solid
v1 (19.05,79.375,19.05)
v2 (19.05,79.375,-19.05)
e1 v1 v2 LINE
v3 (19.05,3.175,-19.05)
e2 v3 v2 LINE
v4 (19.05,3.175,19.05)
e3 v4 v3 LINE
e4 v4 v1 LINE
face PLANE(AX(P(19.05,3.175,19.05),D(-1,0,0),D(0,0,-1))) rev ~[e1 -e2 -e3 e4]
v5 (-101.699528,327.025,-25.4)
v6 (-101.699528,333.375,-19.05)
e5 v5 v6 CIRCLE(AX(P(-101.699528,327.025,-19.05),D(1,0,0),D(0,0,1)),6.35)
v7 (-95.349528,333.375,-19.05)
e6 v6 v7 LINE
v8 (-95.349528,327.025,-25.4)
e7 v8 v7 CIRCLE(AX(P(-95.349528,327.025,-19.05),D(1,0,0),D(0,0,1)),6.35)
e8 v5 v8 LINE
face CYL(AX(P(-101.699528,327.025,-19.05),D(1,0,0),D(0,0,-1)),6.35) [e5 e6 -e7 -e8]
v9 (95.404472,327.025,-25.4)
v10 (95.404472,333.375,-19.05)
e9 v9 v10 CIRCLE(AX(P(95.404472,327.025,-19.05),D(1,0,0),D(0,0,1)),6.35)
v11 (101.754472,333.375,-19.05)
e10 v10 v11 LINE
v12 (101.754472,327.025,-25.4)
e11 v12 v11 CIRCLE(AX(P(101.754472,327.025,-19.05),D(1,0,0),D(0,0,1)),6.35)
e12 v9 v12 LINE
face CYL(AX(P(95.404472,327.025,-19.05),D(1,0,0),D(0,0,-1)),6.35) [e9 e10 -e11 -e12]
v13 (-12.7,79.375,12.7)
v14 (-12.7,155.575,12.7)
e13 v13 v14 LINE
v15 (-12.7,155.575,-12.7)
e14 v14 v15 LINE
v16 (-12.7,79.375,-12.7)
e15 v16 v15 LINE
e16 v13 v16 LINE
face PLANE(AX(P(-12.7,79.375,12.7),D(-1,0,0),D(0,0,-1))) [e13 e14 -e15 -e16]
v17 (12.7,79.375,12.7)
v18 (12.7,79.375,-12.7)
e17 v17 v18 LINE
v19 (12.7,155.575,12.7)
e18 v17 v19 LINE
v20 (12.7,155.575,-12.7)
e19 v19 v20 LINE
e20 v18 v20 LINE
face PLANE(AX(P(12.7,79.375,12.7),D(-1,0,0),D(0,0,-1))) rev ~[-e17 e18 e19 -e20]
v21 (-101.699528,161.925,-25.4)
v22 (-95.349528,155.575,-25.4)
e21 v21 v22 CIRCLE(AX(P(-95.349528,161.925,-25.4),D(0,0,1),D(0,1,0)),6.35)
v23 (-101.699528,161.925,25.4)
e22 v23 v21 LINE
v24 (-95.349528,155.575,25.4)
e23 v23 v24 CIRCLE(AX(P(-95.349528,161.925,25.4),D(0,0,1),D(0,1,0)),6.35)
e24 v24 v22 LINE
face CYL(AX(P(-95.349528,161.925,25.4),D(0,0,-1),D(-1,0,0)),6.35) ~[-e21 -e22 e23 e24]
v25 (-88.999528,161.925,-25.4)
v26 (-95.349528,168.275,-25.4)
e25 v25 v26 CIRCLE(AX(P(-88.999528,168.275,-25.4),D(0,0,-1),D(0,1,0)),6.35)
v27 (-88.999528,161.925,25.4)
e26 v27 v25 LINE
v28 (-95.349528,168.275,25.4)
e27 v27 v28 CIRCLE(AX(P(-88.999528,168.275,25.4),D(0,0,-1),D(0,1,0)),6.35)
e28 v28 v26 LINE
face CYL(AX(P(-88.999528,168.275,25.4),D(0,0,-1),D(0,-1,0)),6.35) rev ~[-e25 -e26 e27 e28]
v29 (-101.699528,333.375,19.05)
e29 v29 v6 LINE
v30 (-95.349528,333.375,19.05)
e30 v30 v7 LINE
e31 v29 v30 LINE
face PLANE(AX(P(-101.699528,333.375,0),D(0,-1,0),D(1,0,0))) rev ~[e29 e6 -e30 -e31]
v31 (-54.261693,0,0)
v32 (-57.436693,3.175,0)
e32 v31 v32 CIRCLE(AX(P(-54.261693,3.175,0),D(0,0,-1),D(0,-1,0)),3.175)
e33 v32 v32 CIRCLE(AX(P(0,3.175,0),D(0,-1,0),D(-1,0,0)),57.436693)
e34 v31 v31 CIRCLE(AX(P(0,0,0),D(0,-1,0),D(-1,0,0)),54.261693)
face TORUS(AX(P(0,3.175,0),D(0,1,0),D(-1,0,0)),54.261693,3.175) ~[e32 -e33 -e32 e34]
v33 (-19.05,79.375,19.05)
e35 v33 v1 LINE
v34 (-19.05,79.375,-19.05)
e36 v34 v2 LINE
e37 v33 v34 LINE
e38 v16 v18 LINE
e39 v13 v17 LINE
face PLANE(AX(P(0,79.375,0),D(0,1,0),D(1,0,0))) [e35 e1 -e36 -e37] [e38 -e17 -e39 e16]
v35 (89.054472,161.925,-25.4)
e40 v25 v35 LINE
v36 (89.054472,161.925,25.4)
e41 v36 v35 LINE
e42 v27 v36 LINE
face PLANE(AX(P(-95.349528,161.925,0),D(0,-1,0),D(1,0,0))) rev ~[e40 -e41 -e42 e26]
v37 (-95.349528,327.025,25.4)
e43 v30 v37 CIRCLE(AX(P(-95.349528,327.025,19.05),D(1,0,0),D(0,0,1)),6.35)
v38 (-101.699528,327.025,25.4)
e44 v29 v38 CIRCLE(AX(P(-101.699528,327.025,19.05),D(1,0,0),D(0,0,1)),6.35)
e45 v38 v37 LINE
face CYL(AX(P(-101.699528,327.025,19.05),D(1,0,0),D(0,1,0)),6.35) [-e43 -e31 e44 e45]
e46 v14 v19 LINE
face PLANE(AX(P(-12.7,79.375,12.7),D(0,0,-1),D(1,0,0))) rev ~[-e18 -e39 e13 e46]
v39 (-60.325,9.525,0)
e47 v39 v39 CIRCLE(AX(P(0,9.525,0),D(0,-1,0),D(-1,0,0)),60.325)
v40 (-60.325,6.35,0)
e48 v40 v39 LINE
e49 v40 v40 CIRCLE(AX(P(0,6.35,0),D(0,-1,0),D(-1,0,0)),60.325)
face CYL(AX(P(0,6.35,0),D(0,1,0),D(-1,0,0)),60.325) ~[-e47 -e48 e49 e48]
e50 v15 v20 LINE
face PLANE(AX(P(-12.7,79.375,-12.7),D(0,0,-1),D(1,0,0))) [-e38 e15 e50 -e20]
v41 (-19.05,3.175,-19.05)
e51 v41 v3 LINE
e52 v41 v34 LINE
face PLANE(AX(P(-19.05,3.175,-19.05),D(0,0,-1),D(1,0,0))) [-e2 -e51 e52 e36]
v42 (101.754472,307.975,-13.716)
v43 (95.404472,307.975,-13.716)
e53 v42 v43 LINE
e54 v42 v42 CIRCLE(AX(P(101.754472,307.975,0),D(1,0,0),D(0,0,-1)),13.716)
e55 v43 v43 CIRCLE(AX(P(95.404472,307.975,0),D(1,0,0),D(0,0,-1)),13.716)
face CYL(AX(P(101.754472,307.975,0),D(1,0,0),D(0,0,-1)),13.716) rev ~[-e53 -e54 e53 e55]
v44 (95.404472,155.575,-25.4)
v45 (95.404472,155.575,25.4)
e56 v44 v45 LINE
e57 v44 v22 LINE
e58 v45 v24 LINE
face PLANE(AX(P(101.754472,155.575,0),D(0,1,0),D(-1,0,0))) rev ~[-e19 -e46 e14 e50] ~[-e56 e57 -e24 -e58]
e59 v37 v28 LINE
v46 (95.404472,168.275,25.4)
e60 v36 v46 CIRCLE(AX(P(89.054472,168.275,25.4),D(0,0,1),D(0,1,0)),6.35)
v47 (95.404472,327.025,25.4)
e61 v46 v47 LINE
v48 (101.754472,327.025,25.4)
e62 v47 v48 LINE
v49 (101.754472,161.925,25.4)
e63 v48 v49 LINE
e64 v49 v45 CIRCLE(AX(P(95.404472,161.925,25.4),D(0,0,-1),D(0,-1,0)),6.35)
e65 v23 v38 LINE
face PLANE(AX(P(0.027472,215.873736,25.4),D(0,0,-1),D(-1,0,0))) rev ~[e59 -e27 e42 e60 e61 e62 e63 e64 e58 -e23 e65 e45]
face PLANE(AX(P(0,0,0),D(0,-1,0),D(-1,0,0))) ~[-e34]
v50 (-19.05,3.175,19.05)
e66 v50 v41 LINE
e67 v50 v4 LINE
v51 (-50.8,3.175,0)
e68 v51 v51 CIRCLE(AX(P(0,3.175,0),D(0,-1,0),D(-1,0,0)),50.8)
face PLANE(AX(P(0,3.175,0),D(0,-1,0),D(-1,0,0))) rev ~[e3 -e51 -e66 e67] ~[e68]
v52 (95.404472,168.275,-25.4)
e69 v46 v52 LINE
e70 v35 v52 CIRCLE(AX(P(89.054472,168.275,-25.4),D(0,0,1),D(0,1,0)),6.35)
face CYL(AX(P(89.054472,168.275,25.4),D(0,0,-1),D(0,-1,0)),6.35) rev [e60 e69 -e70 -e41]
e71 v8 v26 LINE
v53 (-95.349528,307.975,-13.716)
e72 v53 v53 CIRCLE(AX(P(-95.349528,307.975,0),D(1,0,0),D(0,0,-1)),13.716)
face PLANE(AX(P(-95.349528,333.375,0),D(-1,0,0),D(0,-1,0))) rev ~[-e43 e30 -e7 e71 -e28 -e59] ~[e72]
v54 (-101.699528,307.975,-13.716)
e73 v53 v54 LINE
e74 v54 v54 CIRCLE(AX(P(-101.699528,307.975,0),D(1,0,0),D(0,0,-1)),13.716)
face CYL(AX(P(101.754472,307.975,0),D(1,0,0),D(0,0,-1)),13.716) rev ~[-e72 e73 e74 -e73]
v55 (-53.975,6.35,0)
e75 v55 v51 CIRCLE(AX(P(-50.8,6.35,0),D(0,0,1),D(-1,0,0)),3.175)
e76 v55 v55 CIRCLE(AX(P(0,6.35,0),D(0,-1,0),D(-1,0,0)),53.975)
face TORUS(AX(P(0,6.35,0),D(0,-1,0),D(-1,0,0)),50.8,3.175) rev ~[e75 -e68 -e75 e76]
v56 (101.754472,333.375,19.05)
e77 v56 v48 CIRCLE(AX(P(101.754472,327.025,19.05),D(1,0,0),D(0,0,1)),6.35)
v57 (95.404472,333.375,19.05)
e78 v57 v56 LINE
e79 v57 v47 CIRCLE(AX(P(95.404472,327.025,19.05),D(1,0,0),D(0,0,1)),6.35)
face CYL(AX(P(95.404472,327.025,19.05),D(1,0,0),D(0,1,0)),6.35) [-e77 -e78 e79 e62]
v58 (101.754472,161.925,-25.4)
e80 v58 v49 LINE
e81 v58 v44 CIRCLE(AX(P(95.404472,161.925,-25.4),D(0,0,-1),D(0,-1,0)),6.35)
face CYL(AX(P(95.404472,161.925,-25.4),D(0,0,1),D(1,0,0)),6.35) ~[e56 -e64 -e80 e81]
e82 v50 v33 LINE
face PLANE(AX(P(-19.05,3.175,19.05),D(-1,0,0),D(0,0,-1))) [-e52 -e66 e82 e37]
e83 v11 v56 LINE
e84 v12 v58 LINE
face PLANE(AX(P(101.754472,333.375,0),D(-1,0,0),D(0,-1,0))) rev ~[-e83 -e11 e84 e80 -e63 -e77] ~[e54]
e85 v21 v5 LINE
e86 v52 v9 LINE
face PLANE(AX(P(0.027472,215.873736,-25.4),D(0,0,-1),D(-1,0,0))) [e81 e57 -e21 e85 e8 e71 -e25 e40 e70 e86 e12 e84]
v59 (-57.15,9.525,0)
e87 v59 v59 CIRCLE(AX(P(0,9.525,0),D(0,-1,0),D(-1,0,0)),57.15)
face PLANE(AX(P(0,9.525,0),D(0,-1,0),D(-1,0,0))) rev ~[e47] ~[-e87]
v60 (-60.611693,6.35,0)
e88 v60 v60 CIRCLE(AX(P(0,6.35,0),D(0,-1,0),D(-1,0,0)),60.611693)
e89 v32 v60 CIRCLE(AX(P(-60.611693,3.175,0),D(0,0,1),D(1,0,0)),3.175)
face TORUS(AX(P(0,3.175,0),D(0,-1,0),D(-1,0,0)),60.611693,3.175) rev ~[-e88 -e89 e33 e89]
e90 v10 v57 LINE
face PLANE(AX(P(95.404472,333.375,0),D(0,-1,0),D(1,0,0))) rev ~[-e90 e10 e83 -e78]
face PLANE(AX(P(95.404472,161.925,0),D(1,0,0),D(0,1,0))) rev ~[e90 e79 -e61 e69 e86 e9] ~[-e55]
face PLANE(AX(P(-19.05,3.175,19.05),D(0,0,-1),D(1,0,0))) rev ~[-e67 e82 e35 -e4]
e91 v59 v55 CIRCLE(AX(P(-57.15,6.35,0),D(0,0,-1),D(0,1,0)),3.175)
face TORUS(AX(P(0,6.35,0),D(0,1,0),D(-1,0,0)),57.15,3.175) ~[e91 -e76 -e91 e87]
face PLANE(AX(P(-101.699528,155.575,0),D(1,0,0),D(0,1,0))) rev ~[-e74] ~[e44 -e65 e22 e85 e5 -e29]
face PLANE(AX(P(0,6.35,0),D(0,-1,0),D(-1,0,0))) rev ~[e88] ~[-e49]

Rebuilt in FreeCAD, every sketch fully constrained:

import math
import FreeCAD as App
import Part
import Sketcher
Q = App.Units.Quantity


def edges_at(feature, points):
    """Names of the edges that pass closest to the given points."""
    edges = feature.Shape.Edges
    near = lambda p: min(range(len(edges)), key=lambda i: edges[i].distToShape(Part.Vertex(*p))[0])
    return sorted({f"Edge{near(p) + 1}" for p in points})


def add_polygon(sketch, points):
    """Adds a closed chain of lines whose ends are joined by coincident constraints."""
    first, n = sketch.GeometryCount, len(points)
    for a, b in zip(points, points[1:] + points[:1]):
        sketch.addGeometry(Part.LineSegment(App.Vector(*a, 0), App.Vector(*b, 0)), False)
    for i in range(n):
        sketch.addConstraint(Sketcher.Constraint("Coincident", first + i, 2, first + (i + 1) % n, 1))

doc = App.newDocument("Part")
body = doc.addObject("PartDesign::Body", "Body")

sketch1 = body.newObject("Sketcher::SketchObject", "Sketch")
sketch1.AttachmentSupport = (doc.getObject("XY_Plane"), [""])
sketch1.MapMode = "FlatFace"
sketch1.addGeometry([
    Part.LineSegment(App.Vector(0, 0, 0), App.Vector(54.26, 0, 0)),
    Part.ArcOfCircle(Part.Circle(App.Vector(54.26, 3.18, 0), App.Vector(0, 0, 1), 3.18), math.radians(-90), math.radians(0)),
    Part.ArcOfCircle(Part.Circle(App.Vector(60.61, 3.17, 0), App.Vector(0, 0, 1), 3.18), math.radians(90), math.radians(180)),
    Part.LineSegment(App.Vector(60.61, 6.35, 0), App.Vector(60.33, 6.35, 0)),
    Part.LineSegment(App.Vector(60.33, 6.35, 0), App.Vector(60.33, 9.53, 0)),
    Part.LineSegment(App.Vector(60.33, 9.53, 0), App.Vector(57.15, 9.53, 0)),
    Part.ArcOfCircle(Part.Circle(App.Vector(57.15, 6.35, 0), App.Vector(0, 0, 1), 3.18), math.radians(90), math.radians(180)),
    Part.ArcOfCircle(Part.Circle(App.Vector(50.8, 6.35, 0), App.Vector(0, 0, 1), 3.18), math.radians(-90), math.radians(0)),
    Part.LineSegment(App.Vector(50.8, 3.17, 0), App.Vector(0, 3.17, 0)),
    Part.LineSegment(App.Vector(0, 3.17, 0), App.Vector(0, 0, 0)),
], False)
sketch1.addConstraint([
    Sketcher.Constraint("Tangent", 0, 2, 1, 1),
    Sketcher.Constraint("Tangent", 1, 2, 2, 2),
    Sketcher.Constraint("Tangent", 2, 1, 3, 1),
    Sketcher.Constraint("Coincident", 3, 2, 4, 1),
    Sketcher.Constraint("Coincident", 4, 2, 5, 1),
    Sketcher.Constraint("Tangent", 5, 2, 6, 1),
    Sketcher.Constraint("Tangent", 6, 2, 7, 2),
    Sketcher.Constraint("Tangent", 7, 1, 8, 1),
    Sketcher.Constraint("Coincident", 8, 2, 9, 1),
    Sketcher.Constraint("Coincident", 9, 2, 0, 1),
    Sketcher.Constraint("Horizontal", 0),
    Sketcher.Constraint("Horizontal", 3),
    Sketcher.Constraint("Vertical", 4),
    Sketcher.Constraint("Horizontal", 5),
    Sketcher.Constraint("Horizontal", 8),
    Sketcher.Constraint("Vertical", 9),
    Sketcher.Constraint("Coincident", 9, 2, -1, 1),
    Sketcher.Constraint("Equal", 1, 2),
    Sketcher.Constraint("Equal", 2, 6),
    Sketcher.Constraint("Equal", 6, 7),
    Sketcher.Constraint("Horizontal", 1, 3, 2, 3),
    Sketcher.Constraint("Horizontal", 6, 3, 7, 3),
    Sketcher.Constraint("Horizontal", 7, 3, 2, 1),
    Sketcher.Constraint("Equal", 5, 4),
    Sketcher.Constraint("DistanceX", 8, 2, 8, 1, Q("2 in")),
    Sketcher.Constraint("Radius", 1, Q("0.125 in")),
    Sketcher.Constraint("DistanceX", 0, 1, 0, 2, 54.261693),
])
revolution = body.newObject("PartDesign::Revolution", "Revolution")
revolution.Profile = sketch1
revolution.ReferenceAxis = (sketch1, ["V_Axis"])
revolution.Angle = 360

sketch2 = body.newObject("Sketcher::SketchObject", "Sketch001")
sketch2.AttachmentSupport = (doc.getObject("XZ_Plane"), [""])
sketch2.MapMode = "FlatFace"
sketch2.AttachmentOffset = App.Placement(App.Vector(0, 0, -0.125 * 25.4), App.Rotation())
add_polygon(sketch2, [(-19, -19), (-19, 19), (19, 19), (19, -19)])
sketch2.addConstraint([
    Sketcher.Constraint("Vertical", 0),
    Sketcher.Constraint("Horizontal", 1),
    Sketcher.Constraint("Vertical", 2),
    Sketcher.Constraint("Horizontal", 3),
    Sketcher.Constraint("Symmetric", 0, 2, 2, 2, -1, 1),
    Sketcher.Constraint("Equal", 3, 0),
    Sketcher.Constraint("DistanceX", 1, 1, 1, 2, Q("1.5 in")),
])
pad1 = body.newObject("PartDesign::Pad", "Pad")
pad1.Profile = sketch2
pad1.Length = Q("3 in")
pad1.Reversed = True

sketch3 = body.newObject("Sketcher::SketchObject", "Sketch002")
sketch3.AttachmentSupport = (doc.getObject("XZ_Plane"), [""])
sketch3.MapMode = "FlatFace"
sketch3.AttachmentOffset = App.Placement(App.Vector(0, 0, -3.125 * 25.4), App.Rotation())
add_polygon(sketch3, [(-13, -13), (-13, 13), (13, 13), (13, -13)])
sketch3.addConstraint([
    Sketcher.Constraint("Vertical", 0),
    Sketcher.Constraint("Horizontal", 1),
    Sketcher.Constraint("Vertical", 2),
    Sketcher.Constraint("Horizontal", 3),
    Sketcher.Constraint("Symmetric", 0, 2, 2, 2, -1, 1),
    Sketcher.Constraint("Equal", 3, 0),
    Sketcher.Constraint("DistanceX", 1, 1, 1, 2, Q("1 in")),
])
pad2 = body.newObject("PartDesign::Pad", "Pad001")
pad2.Profile = sketch3
pad2.Length = Q("3 in")
pad2.Reversed = True

sketch4 = body.newObject("Sketcher::SketchObject", "Sketch003")
sketch4.AttachmentSupport = (doc.getObject("XY_Plane"), [""])
sketch4.MapMode = "FlatFace"
add_polygon(sketch4, [(-102, 156), (102, 156), (102, 333), (95, 333), (95, 162), (-95, 162), (-95, 333), (-102, 333)])
sketch4.addConstraint([
    Sketcher.Constraint("Horizontal", 0),
    Sketcher.Constraint("Vertical", 1),
    Sketcher.Constraint("Horizontal", 2),
    Sketcher.Constraint("Vertical", 3),
    Sketcher.Constraint("Horizontal", 4),
    Sketcher.Constraint("Vertical", 5),
    Sketcher.Constraint("Horizontal", 6),
    Sketcher.Constraint("Vertical", 7),
    Sketcher.Constraint("Horizontal", 2, 2, 5, 2),
    Sketcher.Constraint("Equal", 2, 6),
    Sketcher.Constraint("DistanceY", 1, 1, 1, 2, Q("7 in")),
    Sketcher.Constraint("DistanceX", 0, 1, 0, 2, Q("8.01 in")),
    Sketcher.Constraint("DistanceX", 2, 2, 2, 1, Q("0.25 in")),
    Sketcher.Constraint("DistanceY", 3, 2, 3, 1, Q("6.75 in")),
    Sketcher.Constraint("DistanceY", -1, 1, 0, 2, Q("6.125 in")),
    Sketcher.Constraint("DistanceX", -1, 1, 0, 2, 101.754472),
])
pad3 = body.newObject("PartDesign::Pad", "Pad002")
pad3.Profile = sketch4
pad3.Length = Q("2 in")
pad3.Midplane = True
doc.recompute()

fillet = body.newObject("PartDesign::Fillet", "Fillet")
fillet.Base = (pad3, edges_at(pad3, [(95.404, 161.925, 0)]))
fillet.Radius = Q("0.25 in")
doc.recompute()

fillet2 = body.newObject("PartDesign::Fillet", "Fillet001")
fillet2.Base = (fillet, edges_at(fillet, [(-95.35, 161.925, 0)]))
fillet2.Radius = Q("0.25 in")
doc.recompute()

fillet3 = body.newObject("PartDesign::Fillet", "Fillet002")
fillet3.Base = (fillet2, edges_at(fillet2, [(-101.7, 155.575, 0), (101.754, 155.575, 0)]))
fillet3.Radius = Q("0.25 in")
doc.recompute()

fillet4 = body.newObject("PartDesign::Fillet", "Fillet003")
fillet4.Base = (fillet3, edges_at(fillet3, [
    (-98.525, 333.375, -25.4),
    (98.579, 333.375, -25.4),
    (-98.525, 333.375, 25.4),
    (98.579, 333.375, 25.4),
]))
fillet4.Radius = Q("0.25 in")

sketch5 = body.newObject("Sketcher::SketchObject", "Sketch004")
sketch5.AttachmentSupport = (doc.getObject("YZ_Plane"), [""])
sketch5.MapMode = "FlatFace"
sketch5.AttachmentOffset = App.Placement(App.Vector(0, 0, 101.754472), App.Rotation())
sketch5.addGeometry(Part.Circle(App.Vector(308, 0, 0), App.Vector(0, 0, 1), 14), False)
sketch5.addConstraint([
    Sketcher.Constraint("PointOnObject", 0, 3, -1),
    Sketcher.Constraint("Diameter", 0, Q("1.08 in")),
    Sketcher.Constraint("DistanceX", -1, 1, 0, 3, Q("12.125 in")),
])
pocket1 = body.newObject("PartDesign::Pocket", "Pocket")
pocket1.Profile = sketch5
pocket1.Type = "ThroughAll"

doc.recompute()
